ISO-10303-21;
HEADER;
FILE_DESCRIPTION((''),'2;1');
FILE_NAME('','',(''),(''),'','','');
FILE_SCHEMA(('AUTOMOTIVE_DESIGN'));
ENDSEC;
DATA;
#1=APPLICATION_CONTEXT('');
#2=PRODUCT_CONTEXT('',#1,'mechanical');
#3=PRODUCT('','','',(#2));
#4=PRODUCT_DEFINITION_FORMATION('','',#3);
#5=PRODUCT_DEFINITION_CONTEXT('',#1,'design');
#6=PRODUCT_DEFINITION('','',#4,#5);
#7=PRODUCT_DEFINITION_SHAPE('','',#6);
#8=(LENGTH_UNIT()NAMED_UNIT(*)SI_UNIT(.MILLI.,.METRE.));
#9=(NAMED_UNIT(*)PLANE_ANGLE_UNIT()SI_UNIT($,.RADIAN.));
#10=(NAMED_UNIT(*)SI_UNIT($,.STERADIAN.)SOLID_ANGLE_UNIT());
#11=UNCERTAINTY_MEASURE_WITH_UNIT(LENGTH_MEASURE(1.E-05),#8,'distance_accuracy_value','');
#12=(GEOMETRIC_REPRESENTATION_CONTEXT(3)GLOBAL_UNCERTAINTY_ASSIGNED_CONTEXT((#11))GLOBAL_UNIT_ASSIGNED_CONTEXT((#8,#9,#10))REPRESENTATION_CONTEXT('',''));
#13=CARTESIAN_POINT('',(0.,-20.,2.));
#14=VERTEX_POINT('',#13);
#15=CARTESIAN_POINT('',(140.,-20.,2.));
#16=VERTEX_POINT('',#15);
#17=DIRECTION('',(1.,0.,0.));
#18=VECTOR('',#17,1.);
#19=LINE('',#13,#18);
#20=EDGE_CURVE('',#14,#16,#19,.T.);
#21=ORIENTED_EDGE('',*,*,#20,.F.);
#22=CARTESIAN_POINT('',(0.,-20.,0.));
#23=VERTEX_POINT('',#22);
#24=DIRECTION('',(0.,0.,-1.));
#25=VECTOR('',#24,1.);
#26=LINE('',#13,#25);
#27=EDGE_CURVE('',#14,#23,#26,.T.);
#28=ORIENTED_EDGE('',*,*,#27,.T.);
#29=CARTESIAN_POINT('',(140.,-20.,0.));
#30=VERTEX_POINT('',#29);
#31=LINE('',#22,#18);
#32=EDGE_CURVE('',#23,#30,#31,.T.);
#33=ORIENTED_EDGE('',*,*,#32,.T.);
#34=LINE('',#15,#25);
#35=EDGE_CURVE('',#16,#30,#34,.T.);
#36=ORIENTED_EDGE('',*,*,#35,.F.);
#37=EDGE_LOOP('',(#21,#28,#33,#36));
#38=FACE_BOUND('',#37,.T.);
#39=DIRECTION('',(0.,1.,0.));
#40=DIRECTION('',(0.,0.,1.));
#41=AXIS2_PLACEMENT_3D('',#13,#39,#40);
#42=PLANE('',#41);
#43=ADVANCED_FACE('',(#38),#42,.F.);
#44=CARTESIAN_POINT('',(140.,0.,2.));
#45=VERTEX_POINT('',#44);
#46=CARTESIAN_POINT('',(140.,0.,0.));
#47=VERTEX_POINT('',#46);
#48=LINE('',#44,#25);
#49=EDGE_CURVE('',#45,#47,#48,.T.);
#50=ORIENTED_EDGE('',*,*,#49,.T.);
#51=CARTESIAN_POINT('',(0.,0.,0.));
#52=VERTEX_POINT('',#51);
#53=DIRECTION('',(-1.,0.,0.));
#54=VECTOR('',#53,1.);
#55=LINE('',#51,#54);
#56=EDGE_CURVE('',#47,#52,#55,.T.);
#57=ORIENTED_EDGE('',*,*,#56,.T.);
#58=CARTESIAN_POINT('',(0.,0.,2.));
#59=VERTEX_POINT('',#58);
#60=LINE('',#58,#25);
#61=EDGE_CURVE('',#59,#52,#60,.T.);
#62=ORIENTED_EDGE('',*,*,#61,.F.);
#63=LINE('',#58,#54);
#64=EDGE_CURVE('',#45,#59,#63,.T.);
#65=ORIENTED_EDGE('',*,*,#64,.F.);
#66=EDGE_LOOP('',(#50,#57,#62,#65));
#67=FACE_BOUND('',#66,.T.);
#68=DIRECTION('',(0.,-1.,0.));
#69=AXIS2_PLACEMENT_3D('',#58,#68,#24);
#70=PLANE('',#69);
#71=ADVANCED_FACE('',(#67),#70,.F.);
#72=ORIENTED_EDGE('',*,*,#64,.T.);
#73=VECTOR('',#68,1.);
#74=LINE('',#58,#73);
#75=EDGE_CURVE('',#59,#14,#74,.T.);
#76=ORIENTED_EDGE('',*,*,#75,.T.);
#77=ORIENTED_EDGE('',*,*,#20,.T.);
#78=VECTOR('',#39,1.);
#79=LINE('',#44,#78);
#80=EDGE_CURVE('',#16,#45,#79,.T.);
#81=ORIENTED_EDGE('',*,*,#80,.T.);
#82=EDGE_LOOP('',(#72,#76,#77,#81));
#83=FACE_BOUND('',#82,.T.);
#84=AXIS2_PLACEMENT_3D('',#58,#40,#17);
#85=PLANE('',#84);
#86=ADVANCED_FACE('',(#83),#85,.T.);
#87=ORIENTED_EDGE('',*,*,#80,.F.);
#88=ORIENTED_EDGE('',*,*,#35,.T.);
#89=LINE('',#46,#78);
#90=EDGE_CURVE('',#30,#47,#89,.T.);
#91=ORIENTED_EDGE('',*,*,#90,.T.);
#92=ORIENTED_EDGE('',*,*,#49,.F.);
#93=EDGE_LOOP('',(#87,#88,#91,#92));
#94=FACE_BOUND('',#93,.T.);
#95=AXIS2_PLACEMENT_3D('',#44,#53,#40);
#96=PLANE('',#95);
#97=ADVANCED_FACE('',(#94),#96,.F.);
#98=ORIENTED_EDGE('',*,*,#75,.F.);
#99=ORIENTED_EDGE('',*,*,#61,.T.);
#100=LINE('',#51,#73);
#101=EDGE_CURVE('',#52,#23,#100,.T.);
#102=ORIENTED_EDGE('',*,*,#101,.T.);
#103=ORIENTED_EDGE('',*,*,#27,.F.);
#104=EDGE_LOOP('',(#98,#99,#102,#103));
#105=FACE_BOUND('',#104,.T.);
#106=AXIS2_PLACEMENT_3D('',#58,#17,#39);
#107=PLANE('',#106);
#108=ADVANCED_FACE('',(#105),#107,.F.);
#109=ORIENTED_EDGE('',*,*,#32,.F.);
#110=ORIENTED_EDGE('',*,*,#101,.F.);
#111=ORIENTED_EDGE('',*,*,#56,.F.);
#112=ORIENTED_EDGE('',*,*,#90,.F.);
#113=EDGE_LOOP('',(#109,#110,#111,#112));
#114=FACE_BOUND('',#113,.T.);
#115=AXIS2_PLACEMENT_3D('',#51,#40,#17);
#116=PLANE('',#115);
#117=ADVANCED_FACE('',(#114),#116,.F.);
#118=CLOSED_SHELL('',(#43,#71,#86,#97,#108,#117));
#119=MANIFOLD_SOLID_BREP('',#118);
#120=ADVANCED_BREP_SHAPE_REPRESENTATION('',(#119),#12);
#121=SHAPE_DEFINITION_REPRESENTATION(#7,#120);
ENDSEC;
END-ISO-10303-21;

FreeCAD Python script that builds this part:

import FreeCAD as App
import Part
import Sketcher


def add_polygon(sketch, points):
    """Adds a closed chain of lines whose ends are joined by coincident constraints."""
    first, n = sketch.GeometryCount, len(points)
    for a, b in zip(points, points[1:] + points[:1]):
        sketch.addGeometry(Part.LineSegment(App.Vector(*a, 0), App.Vector(*b, 0)), False)
    for i in range(n):
        sketch.addConstraint(Sketcher.Constraint("Coincident", first + i, 2, first + (i + 1) % n, 1))

doc = App.newDocument("Part")
body = doc.addObject("PartDesign::Body", "Body")

# Sketch on XY plane
sketch1 = body.newObject("Sketcher::SketchObject", "Sketch")
sketch1.AttachmentSupport = (doc.getObject("XY_Plane"), [""])
sketch1.MapMode = "FlatFace"
add_polygon(sketch1, [(0, 0), (0, -20), (140, -20), (140, 0)])  # lines 0-3
sketch1.addConstraint(Sketcher.Constraint("Vertical", 0))
sketch1.addConstraint(Sketcher.Constraint("Horizontal", 1))
sketch1.addConstraint(Sketcher.Constraint("Vertical", 2))
sketch1.addConstraint(Sketcher.Constraint("Horizontal", 3))
sketch1.addConstraint(Sketcher.Constraint("Coincident", 3, 2, -1, 1))
sketch1.addConstraint(Sketcher.Constraint("DistanceX", 1, 1, 1, 2, 140.0))
sketch1.addConstraint(Sketcher.Constraint("DistanceY", 0, 2, 0, 1, 20.0))
pad1 = body.newObject("PartDesign::Pad", "Pad")
pad1.Profile = sketch1
pad1.Length = 2

doc.recompute()
